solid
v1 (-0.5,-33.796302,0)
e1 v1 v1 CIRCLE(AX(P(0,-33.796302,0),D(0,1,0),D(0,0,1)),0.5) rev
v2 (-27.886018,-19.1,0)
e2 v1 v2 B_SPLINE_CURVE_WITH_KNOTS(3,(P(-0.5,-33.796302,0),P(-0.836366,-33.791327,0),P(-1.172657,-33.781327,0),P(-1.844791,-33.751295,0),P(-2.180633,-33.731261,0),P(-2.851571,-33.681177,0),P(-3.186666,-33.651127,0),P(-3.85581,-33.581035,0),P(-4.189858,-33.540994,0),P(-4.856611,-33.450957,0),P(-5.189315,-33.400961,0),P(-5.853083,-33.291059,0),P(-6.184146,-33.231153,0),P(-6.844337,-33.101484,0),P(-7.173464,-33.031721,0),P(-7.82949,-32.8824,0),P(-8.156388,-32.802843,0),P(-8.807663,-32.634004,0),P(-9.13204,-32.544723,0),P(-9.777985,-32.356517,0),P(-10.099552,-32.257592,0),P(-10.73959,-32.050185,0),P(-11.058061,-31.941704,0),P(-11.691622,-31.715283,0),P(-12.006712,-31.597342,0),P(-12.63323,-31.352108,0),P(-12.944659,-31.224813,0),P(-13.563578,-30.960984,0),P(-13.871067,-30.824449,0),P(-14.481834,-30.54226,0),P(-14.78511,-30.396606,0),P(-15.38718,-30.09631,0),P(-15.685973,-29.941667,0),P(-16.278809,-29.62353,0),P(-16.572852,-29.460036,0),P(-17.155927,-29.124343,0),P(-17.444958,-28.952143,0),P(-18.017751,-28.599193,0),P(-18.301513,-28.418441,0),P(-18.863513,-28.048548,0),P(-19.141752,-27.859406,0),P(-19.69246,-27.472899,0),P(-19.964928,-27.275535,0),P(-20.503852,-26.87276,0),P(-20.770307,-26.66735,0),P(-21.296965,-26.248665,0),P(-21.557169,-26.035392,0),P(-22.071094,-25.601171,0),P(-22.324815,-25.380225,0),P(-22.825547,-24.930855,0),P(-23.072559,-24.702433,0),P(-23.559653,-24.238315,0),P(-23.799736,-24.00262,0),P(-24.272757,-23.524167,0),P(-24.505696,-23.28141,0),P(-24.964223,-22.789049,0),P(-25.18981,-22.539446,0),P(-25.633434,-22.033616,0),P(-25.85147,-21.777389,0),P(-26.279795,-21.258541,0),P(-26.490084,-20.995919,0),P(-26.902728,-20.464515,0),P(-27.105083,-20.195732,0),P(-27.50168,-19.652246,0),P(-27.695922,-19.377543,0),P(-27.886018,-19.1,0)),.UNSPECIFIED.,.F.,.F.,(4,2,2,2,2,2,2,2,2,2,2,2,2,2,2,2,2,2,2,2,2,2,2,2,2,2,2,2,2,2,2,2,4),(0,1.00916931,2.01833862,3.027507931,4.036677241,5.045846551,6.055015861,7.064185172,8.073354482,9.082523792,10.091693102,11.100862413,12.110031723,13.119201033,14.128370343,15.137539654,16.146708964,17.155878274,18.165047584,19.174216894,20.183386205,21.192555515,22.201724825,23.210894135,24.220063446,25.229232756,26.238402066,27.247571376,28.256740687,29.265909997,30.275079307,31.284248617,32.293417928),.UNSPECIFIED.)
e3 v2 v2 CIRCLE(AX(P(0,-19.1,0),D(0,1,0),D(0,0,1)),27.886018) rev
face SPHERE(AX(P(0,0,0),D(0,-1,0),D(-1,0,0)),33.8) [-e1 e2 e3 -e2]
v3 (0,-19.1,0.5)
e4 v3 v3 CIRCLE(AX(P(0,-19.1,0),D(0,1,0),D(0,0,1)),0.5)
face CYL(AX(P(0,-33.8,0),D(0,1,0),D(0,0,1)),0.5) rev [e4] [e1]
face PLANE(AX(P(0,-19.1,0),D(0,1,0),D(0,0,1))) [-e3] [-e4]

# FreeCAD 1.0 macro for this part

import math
import FreeCAD as App
import Part
import Sketcher

V = App.Vector
Q = App.Units.Quantity

doc = App.newDocument("Part")
body = doc.addObject("PartDesign::Body", "Body")

sketch1 = doc.addObject("Sketcher::SketchObject", "Sketch")
body.addObject(sketch1)
sketch1.AttachmentSupport = (doc.XY_Plane, [""])
sketch1.MapMode = "FlatFace"
sketch1.addGeometry([
    Part.LineSegment(V(0, 0, 0), V(0, -33.8, 0)),
    Part.ArcOfCircle(Part.Circle(V(0, 0, 0), V(0, 0, 1), 33.8), math.radians(-90), math.radians(0)),
    Part.LineSegment(V(33.8, 0, 0), V(0, 0, 0)),
], False)
sketch1.addConstraint([
    Sketcher.Constraint("Coincident", 0, 2, 1, 1),
    Sketcher.Constraint("Coincident", 1, 2, 2, 1),
    Sketcher.Constraint("Coincident", 2, 2, 0, 1),
    Sketcher.Constraint("Vertical", 0),
    Sketcher.Constraint("Horizontal", 2),
    Sketcher.Constraint("Coincident", 1, 3, -1, 1),
    Sketcher.Constraint("Coincident", 2, 2, -1, 1),
    Sketcher.Constraint("Radius", 1, Q("33.8 mm")),
])
revolution = doc.addObject("PartDesign::Revolution", "Revolution")
body.addObject(revolution)
revolution.Profile = sketch1
revolution.ReferenceAxis = (sketch1, ["V_Axis"])
revolution.Angle = 360

sketch2 = doc.addObject("Sketcher::SketchObject", "Sketch001")
body.addObject(sketch2)
sketch2.AttachmentSupport = (doc.XZ_Plane, [""])
sketch2.MapMode = "FlatFace"
sketch2.addGeometry(Part.Circle(V(0, 0, 0), V(0, 0, 1), 33.8), False)
sketch2.addConstraint([
    Sketcher.Constraint("Coincident", 0, 3, -1, 1),
    Sketcher.Constraint("Diameter", 0, Q("67.6 mm")),
])
pocket1 = doc.addObject("PartDesign::Pocket", "Pocket")
body.addObject(pocket1)
pocket1.Profile = sketch2
pocket1.Length = 19.1
pocket1.Reversed = True

sketch3 = doc.addObject("Sketcher::SketchObject", "Sketch002")
body.addObject(sketch3)
sketch3.AttachmentSupport = (doc.XZ_Plane, [""])
sketch3.MapMode = "FlatFace"
sketch3.AttachmentOffset = App.Placement(V(0, 0, 19.1), App.Rotation())
sketch3.addGeometry(Part.Circle(V(0, 0, 0), V(0, 0, 1), 0.5), False)
sketch3.addConstraint([
    Sketcher.Constraint("Coincident", 0, 3, -1, 1),
    Sketcher.Constraint("Diameter", 0, Q("1 mm")),
])
pocket2 = doc.addObject("PartDesign::Pocket", "Pocket001")
body.addObject(pocket2)
pocket2.Profile = sketch3
pocket2.Type = "ThroughAll"
pocket2.Reversed = True

doc.recompute()
